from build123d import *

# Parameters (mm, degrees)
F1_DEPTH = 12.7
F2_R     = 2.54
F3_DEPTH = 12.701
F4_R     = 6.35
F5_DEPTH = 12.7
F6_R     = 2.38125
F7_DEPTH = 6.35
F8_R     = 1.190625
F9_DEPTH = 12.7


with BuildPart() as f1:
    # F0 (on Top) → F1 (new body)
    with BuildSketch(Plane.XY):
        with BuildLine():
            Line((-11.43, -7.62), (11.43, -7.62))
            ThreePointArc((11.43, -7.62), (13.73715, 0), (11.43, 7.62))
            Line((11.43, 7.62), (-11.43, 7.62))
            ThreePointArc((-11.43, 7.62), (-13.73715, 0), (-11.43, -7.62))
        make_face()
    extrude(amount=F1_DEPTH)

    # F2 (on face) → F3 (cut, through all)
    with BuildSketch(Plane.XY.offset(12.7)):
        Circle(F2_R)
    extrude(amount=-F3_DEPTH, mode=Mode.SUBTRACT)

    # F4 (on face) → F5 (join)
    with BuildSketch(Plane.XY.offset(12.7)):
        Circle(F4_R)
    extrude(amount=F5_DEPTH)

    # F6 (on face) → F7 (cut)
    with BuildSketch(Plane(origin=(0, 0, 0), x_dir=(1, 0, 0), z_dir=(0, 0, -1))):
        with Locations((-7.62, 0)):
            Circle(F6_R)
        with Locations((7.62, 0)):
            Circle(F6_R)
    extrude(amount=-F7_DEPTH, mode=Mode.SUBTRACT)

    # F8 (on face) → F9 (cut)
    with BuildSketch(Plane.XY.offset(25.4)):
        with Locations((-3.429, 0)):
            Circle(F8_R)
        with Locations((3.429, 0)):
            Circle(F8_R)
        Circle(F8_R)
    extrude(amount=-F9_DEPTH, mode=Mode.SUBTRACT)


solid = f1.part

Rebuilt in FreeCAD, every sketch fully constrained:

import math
import FreeCAD as App
import Part
import Sketcher
Q = App.Units.Quantity

doc = App.newDocument("Part")
params = doc.addObject("Spreadsheet::Sheet", "Params")
for row, (alias, value) in enumerate([
    ("sketch1_width", "0.9 in"),
    ("pad1_length", "0.5 in"),
    ("sketch2_diameter", "0.2 in"),
    ("sketch3_diameter", "0.5 in"),
    ("pad2_length", "0.5 in"),
    ("sketch4_diameter", "0.1875 in"),
    ("pocket2_length", "0.25 in"),
    ("sketch5_diameter", "0.09375 in"),
    ("pocket3_length", "0.5 in"),
], start=1):
    params.set(f"A{row}", alias)
    params.set(f"B{row}", "=" + value)
    params.setAlias(f"B{row}", alias)

body = doc.addObject("PartDesign::Body", "Body")

# Sketch on XY plane
sketch1 = doc.addObject("Sketcher::SketchObject", "Sketch")
body.addObject(sketch1)
sketch1.AttachmentSupport = (doc.XY_Plane, [""])
sketch1.MapMode = "FlatFace"
sketch1.addGeometry(Part.LineSegment(App.Vector(-11, -8, 0), App.Vector(11, -8, 0)), False)
sketch1.addGeometry(Part.ArcOfCircle(Part.Circle(App.Vector(0, 0, 0), App.Vector(0, 0, 1), 14), math.radians(-34), math.radians(34)), False)
sketch1.addGeometry(Part.LineSegment(App.Vector(11, 8, 0), App.Vector(-11, 8, 0)), False)
sketch1.addGeometry(Part.ArcOfCircle(Part.Circle(App.Vector(0, 0, 0), App.Vector(0, 0, 1), 14), math.radians(146), math.radians(214)), False)
sketch1.addConstraint(Sketcher.Constraint("Coincident", 0, 2, 1, 1))
sketch1.addConstraint(Sketcher.Constraint("Coincident", 1, 2, 2, 1))
sketch1.addConstraint(Sketcher.Constraint("Coincident", 2, 2, 3, 1))
sketch1.addConstraint(Sketcher.Constraint("Coincident", 3, 2, 0, 1))
sketch1.addConstraint(Sketcher.Constraint("Horizontal", 0))
sketch1.addConstraint(Sketcher.Constraint("Horizontal", 2))
sketch1.addConstraint(Sketcher.Constraint("Coincident", 1, 3, -1, 1))
sketch1.addConstraint(Sketcher.Constraint("Coincident", 3, 3, -1, 1))
sketch1.addConstraint(Sketcher.Constraint("Equal", 1, 3))
sketch1.addConstraint(Sketcher.Constraint("Vertical", 0, 2, 1, 2))
sketch1.addConstraint(Sketcher.Constraint("DistanceX", 0, 1, 0, 2, Q("0.9 in")))
sketch1.addConstraint(Sketcher.Constraint("DistanceY", 0, 2, -1, 1, Q("0.3 in")))
sketch1.setExpression("Constraints[10]", "Params.sketch1_width")
pad1 = doc.addObject("PartDesign::Pad", "Pad")
body.addObject(pad1)
pad1.Profile = sketch1
pad1.setExpression("Length", "Params.pad1_length")

# Sketch on XY plane
sketch2 = doc.addObject("Sketcher::SketchObject", "Sketch001")
body.addObject(sketch2)
sketch2.AttachmentSupport = (doc.XY_Plane, [""])
sketch2.MapMode = "FlatFace"
sketch2.AttachmentOffset = App.Placement(App.Vector(0, 0, 0.5 * 25.4), App.Rotation())
sketch2.addGeometry(Part.Circle(App.Vector(0, 0, 0), App.Vector(0, 0, 1), 2.5), False)
sketch2.addConstraint(Sketcher.Constraint("Coincident", 0, 3, -1, 1))
sketch2.addConstraint(Sketcher.Constraint("Diameter", 0, Q("0.2 in")))
sketch2.setExpression("Constraints[1]", "Params.sketch2_diameter")
pocket1 = doc.addObject("PartDesign::Pocket", "Pocket")
body.addObject(pocket1)
pocket1.Profile = sketch2
pocket1.Type = "ThroughAll"

# Sketch on XY plane
sketch3 = doc.addObject("Sketcher::SketchObject", "Sketch002")
body.addObject(sketch3)
sketch3.AttachmentSupport = (doc.XY_Plane, [""])
sketch3.MapMode = "FlatFace"
sketch3.AttachmentOffset = App.Placement(App.Vector(0, 0, 0.5 * 25.4), App.Rotation())
sketch3.addGeometry(Part.Circle(App.Vector(0, 0, 0), App.Vector(0, 0, 1), 6), False)
sketch3.addConstraint(Sketcher.Constraint("Coincident", 0, 3, -1, 1))
sketch3.addConstraint(Sketcher.Constraint("Diameter", 0, Q("0.5 in")))
sketch3.setExpression("Constraints[1]", "Params.sketch3_diameter")
pad2 = doc.addObject("PartDesign::Pad", "Pad001")
body.addObject(pad2)
pad2.Profile = sketch3
pad2.setExpression("Length", "Params.pad2_length")

# Sketch on XY plane
sketch4 = doc.addObject("Sketcher::SketchObject", "Sketch003")
body.addObject(sketch4)
sketch4.AttachmentSupport = (doc.XY_Plane, [""])
sketch4.MapMode = "FlatFace"
sketch4.addGeometry(Part.Circle(App.Vector(-7.6, 0, 0), App.Vector(0, 0, 1), 2.4), False)
sketch4.addGeometry(Part.Circle(App.Vector(7.6, 0, 0), App.Vector(0, 0, 1), 2.4), False)
sketch4.addConstraint(Sketcher.Constraint("Equal", 0, 1))
sketch4.addConstraint(Sketcher.Constraint("Symmetric", 0, 3, 1, 3, -1, 1))
sketch4.addConstraint(Sketcher.Constraint("PointOnObject", 0, 3, -1))
sketch4.addConstraint(Sketcher.Constraint("Diameter", 0, Q("0.1875 in")))
sketch4.addConstraint(Sketcher.Constraint("DistanceX", 0, 3, -1, 1, Q("0.3 in")))
sketch4.setExpression("Constraints[3]", "Params.sketch4_diameter")
pocket2 = doc.addObject("PartDesign::Pocket", "Pocket001")
body.addObject(pocket2)
pocket2.Profile = sketch4
pocket2.setExpression("Length", "Params.pocket2_length")
pocket2.Reversed = True

# Sketch on XY plane
sketch5 = doc.addObject("Sketcher::SketchObject", "Sketch004")
body.addObject(sketch5)
sketch5.AttachmentSupport = (doc.XY_Plane, [""])
sketch5.MapMode = "FlatFace"
sketch5.AttachmentOffset = App.Placement(App.Vector(0, 0, 1 * 25.4), App.Rotation())
sketch5.addGeometry(Part.Circle(App.Vector(-3.4, 0, 0), App.Vector(0, 0, 1), 1.2), False)
sketch5.addGeometry(Part.Circle(App.Vector(3.4, 0, 0), App.Vector(0, 0, 1), 1.2), False)
sketch5.addGeometry(Part.Circle(App.Vector(0, 0, 0), App.Vector(0, 0, 1), 1.2), False)
sketch5.addConstraint(Sketcher.Constraint("Coincident", 2, 3, -1, 1))
sketch5.addConstraint(Sketcher.Constraint("Equal", 0, 1))
sketch5.addConstraint(Sketcher.Constraint("Equal", 1, 2))
sketch5.addConstraint(Sketcher.Constraint("Symmetric", 0, 3, 1, 3, -1, 1))
sketch5.addConstraint(Sketcher.Constraint("PointOnObject", 0, 3, -1))
sketch5.addConstraint(Sketcher.Constraint("Diameter", 0, Q("0.09375 in")))
sketch5.addConstraint(Sketcher.Constraint("DistanceX", 0, 3, 1, 3, Q("0.27 in")))
sketch5.setExpression("Constraints[5]", "Params.sketch5_diameter")
pocket3 = doc.addObject("PartDesign::Pocket", "Pocket002")
body.addObject(pocket3)
pocket3.Profile = sketch5
pocket3.setExpression("Length", "Params.pocket3_length")

doc.recompute()
